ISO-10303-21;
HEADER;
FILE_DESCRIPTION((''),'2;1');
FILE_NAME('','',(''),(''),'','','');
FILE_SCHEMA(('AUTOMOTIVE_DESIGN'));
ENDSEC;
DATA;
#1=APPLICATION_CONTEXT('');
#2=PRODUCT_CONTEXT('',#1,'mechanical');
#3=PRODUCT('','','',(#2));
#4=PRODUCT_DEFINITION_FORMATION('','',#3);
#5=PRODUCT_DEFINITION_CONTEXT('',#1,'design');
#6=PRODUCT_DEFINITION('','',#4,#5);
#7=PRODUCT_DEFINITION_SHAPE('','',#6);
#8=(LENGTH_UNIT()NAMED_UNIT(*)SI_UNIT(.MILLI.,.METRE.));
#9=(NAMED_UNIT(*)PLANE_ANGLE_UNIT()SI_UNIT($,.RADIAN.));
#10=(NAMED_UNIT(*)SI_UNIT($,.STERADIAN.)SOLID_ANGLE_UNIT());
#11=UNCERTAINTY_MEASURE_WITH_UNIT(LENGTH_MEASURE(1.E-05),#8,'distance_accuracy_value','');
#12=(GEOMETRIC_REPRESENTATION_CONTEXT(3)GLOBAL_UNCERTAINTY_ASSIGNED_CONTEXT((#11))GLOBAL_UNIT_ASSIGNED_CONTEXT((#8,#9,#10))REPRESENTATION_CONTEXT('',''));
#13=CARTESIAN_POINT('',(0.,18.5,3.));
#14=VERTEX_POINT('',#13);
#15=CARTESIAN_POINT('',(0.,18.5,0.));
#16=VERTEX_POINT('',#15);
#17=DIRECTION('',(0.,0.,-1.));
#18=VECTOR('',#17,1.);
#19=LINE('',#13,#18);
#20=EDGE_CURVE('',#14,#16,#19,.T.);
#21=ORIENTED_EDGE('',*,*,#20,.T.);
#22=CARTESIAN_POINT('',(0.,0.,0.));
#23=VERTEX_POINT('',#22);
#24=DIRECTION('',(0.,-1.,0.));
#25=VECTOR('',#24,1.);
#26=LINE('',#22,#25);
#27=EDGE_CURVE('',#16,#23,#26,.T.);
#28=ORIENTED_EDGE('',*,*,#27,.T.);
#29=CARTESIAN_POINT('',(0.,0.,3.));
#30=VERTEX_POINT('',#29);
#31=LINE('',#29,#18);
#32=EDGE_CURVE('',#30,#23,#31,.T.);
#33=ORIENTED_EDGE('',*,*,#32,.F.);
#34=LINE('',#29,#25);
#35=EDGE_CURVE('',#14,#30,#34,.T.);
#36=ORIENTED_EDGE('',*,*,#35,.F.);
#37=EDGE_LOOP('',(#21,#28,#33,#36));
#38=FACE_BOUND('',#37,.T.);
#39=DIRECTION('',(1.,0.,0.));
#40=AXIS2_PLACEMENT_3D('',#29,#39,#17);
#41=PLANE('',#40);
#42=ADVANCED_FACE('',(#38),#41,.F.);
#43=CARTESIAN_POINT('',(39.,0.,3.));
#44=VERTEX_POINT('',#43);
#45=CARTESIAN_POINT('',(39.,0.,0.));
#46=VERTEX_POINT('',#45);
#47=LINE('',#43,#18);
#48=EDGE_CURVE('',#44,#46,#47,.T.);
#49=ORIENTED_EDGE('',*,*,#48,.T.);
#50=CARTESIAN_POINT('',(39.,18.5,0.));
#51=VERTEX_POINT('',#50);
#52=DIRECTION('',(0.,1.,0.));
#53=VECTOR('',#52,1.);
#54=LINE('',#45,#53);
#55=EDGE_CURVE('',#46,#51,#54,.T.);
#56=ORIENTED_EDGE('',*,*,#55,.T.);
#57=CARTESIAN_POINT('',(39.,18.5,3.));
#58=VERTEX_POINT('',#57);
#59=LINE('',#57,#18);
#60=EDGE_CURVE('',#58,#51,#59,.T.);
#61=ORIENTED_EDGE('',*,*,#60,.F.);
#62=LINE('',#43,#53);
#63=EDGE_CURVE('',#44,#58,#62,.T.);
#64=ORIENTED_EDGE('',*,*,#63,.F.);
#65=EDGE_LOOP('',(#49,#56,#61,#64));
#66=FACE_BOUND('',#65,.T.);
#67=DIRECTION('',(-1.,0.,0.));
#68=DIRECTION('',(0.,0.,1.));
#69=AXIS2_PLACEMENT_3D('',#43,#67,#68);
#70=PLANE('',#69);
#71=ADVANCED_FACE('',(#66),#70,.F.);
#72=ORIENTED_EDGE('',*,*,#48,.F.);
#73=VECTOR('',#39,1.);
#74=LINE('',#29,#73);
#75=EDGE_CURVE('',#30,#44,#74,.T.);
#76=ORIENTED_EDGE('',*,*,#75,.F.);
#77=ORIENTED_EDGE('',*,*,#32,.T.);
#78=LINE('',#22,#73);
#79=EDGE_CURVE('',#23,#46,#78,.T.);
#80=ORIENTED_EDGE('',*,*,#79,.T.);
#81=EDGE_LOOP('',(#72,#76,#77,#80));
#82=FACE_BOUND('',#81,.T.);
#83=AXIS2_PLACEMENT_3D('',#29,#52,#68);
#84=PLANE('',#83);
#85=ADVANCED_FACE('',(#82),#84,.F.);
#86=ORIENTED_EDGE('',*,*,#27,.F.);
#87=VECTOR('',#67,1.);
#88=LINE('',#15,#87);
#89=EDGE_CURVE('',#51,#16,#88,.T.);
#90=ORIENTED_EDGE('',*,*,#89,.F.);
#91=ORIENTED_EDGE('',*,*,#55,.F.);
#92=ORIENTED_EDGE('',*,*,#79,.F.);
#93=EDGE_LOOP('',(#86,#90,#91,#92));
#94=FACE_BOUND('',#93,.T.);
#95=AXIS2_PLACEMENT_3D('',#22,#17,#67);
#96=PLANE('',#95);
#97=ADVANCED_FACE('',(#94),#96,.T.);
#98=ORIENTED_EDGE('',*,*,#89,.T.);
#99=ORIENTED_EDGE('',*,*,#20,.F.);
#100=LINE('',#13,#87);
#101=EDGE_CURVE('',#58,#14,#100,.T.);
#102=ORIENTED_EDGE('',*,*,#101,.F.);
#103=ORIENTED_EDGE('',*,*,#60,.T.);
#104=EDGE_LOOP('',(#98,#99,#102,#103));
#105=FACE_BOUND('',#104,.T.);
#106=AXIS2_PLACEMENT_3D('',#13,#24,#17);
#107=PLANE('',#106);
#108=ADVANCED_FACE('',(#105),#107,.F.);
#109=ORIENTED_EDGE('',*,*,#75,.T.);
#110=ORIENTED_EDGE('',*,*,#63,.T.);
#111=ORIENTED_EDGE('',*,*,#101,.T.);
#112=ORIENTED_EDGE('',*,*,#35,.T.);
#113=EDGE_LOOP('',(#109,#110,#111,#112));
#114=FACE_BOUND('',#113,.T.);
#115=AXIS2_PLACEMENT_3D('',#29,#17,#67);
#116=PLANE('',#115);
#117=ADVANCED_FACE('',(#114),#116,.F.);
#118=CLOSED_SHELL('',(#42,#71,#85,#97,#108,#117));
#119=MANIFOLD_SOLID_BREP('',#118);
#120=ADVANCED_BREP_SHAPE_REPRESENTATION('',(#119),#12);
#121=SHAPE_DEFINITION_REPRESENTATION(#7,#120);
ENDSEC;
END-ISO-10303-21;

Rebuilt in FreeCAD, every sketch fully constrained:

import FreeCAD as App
import Part
import Sketcher


def add_polygon(sketch, points):
    """Adds a closed chain of lines whose ends are joined by coincident constraints."""
    first, n = sketch.GeometryCount, len(points)
    for a, b in zip(points, points[1:] + points[:1]):
        sketch.addGeometry(Part.LineSegment(App.Vector(*a, 0), App.Vector(*b, 0)), False)
    for i in range(n):
        sketch.addConstraint(Sketcher.Constraint("Coincident", first + i, 2, first + (i + 1) % n, 1))

doc = App.newDocument("Part")
params = doc.addObject("Spreadsheet::Sheet", "Params")
for row, (alias, value) in enumerate([
    ("sketch1_width", "39 mm"),
    ("sketch1_height", "18.5 mm"),
    ("pad1_length", "3 mm"),
], start=1):
    params.set(f"A{row}", alias)
    params.set(f"B{row}", "=" + value)
    params.setAlias(f"B{row}", alias)

body = doc.addObject("PartDesign::Body", "Body")

sketch1 = body.newObject("Sketcher::SketchObject", "Sketch")
sketch1.AttachmentSupport = (doc.getObject("XY_Plane"), [""])
sketch1.MapMode = "FlatFace"
add_polygon(sketch1, [(0, 18.5), (0, 0), (39, 0), (39, 18.5)])
sketch1.addConstraint(Sketcher.Constraint("Vertical", 0))
sketch1.addConstraint(Sketcher.Constraint("Horizontal", 1))
sketch1.addConstraint(Sketcher.Constraint("Vertical", 2))
sketch1.addConstraint(Sketcher.Constraint("Horizontal", 3))
sketch1.addConstraint(Sketcher.Constraint("Coincident", 0, 2, -1, 1))
sketch1.addConstraint(Sketcher.Constraint("DistanceX", 1, 1, 1, 2, 39.0))
sketch1.addConstraint(Sketcher.Constraint("DistanceY", 0, 2, 0, 1, 18.5))
sketch1.setExpression("Constraints[9]", "Params.sketch1_width")
sketch1.setExpression("Constraints[10]", "Params.sketch1_height")
pad1 = body.newObject("PartDesign::Pad", "Pad")
pad1.Profile = sketch1
pad1.setExpression("Length", "Params.pad1_length")

doc.recompute()
